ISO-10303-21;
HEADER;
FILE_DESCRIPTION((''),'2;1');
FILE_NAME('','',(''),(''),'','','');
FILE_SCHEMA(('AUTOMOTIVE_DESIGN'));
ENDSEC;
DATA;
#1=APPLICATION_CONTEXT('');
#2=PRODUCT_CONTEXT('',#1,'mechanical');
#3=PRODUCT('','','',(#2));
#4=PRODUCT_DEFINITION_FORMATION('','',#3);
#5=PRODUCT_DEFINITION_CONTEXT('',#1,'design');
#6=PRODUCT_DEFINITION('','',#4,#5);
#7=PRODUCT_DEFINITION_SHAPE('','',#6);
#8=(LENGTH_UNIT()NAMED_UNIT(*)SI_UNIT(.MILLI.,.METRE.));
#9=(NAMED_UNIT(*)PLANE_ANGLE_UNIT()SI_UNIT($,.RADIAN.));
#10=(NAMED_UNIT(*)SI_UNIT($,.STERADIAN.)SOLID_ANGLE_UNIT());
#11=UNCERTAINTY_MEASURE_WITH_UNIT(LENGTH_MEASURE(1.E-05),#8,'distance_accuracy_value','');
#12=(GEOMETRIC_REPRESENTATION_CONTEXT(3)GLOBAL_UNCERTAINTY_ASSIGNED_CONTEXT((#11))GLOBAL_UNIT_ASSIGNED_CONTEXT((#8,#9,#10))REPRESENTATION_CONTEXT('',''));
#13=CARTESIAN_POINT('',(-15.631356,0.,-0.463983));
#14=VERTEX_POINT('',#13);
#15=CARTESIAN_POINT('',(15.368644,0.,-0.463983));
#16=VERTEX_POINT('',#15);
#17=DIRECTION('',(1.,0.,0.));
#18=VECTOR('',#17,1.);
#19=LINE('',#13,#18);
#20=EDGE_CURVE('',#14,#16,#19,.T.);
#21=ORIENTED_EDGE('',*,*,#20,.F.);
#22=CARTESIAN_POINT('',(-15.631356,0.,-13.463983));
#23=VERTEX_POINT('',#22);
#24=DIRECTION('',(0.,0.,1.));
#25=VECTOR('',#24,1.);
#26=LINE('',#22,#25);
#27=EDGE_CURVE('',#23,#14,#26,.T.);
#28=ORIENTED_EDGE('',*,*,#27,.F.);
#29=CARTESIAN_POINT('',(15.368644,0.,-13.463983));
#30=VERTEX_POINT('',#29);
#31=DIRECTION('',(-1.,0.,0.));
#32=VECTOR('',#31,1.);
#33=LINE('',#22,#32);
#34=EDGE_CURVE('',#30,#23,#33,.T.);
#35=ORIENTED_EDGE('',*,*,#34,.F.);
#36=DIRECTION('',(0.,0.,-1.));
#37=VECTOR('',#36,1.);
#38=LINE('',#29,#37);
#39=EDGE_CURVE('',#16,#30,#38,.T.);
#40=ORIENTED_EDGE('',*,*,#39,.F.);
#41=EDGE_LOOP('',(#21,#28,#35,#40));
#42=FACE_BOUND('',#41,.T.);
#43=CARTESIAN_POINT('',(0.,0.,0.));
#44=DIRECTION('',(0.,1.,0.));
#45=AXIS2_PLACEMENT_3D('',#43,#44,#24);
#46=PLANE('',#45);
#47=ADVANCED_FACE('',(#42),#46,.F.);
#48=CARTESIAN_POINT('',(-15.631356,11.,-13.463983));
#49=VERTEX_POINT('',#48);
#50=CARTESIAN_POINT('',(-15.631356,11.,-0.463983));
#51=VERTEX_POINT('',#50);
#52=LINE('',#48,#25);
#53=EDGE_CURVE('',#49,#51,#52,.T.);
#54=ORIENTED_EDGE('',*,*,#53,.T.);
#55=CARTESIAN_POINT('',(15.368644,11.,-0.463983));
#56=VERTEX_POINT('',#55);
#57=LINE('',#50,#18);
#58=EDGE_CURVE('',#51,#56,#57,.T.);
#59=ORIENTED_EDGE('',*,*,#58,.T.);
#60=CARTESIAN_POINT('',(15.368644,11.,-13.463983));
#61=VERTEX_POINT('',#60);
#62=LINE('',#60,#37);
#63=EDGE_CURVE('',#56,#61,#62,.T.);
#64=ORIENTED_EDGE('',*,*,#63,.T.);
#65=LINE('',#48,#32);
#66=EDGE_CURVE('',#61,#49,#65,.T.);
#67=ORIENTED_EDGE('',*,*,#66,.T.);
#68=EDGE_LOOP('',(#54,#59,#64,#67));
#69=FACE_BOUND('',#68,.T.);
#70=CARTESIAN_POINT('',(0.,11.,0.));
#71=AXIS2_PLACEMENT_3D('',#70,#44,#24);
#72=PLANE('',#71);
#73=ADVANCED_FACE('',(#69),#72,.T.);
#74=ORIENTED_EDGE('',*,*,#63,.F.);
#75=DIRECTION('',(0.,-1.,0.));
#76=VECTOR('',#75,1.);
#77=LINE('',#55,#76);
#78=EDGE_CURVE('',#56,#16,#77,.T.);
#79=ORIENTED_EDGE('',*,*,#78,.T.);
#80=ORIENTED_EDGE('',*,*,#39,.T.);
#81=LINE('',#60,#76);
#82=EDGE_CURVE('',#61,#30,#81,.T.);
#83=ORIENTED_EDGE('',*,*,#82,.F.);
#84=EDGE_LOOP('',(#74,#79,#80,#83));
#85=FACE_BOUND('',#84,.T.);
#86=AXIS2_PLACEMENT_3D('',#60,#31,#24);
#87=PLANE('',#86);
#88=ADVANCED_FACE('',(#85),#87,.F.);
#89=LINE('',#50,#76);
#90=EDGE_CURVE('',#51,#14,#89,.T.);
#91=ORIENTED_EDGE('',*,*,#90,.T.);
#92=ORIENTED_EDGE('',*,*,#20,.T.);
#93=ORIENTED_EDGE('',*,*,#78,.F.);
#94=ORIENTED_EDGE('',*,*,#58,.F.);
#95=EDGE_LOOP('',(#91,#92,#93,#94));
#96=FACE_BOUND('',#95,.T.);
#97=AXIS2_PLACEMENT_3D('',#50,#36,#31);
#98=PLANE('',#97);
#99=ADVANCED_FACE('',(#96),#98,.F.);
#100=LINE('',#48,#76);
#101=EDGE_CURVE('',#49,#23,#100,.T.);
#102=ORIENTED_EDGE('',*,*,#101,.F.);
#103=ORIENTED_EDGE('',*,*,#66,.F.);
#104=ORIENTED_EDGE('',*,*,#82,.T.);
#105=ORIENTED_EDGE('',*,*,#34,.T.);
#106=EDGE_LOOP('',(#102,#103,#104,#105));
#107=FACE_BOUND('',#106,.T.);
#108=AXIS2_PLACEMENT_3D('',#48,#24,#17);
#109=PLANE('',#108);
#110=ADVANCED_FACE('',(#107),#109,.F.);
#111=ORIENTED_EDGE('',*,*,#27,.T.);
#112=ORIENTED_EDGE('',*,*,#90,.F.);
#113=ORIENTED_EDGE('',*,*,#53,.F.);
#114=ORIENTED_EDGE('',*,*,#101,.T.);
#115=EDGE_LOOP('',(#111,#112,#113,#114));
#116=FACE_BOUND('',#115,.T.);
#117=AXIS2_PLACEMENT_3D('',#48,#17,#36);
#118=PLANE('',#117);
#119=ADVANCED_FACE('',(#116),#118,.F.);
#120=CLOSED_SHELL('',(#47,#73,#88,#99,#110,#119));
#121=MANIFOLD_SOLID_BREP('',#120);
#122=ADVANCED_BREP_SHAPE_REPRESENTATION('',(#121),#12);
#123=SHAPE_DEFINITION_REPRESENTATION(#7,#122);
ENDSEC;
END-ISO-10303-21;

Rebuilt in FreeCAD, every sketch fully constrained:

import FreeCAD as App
import Part
import Sketcher
Q = App.Units.Quantity


def add_polygon(sketch, points):
    """Adds a closed chain of lines whose ends are joined by coincident constraints."""
    first, n = sketch.GeometryCount, len(points)
    for a, b in zip(points, points[1:] + points[:1]):
        sketch.addGeometry(Part.LineSegment(App.Vector(*a, 0), App.Vector(*b, 0)), False)
    for i in range(n):
        sketch.addConstraint(Sketcher.Constraint("Coincident", first + i, 2, first + (i + 1) % n, 1))

doc = App.newDocument("Part")
params = doc.addObject("Spreadsheet::Sheet", "Params")
for row, (alias, value) in enumerate([
    ("sketch1_width", "31 mm"),
    ("sketch1_height", "13 mm"),
    ("pad1_length", "11 mm"),
], start=1):
    params.set(f"A{row}", alias)
    params.set(f"B{row}", "=" + value)
    params.setAlias(f"B{row}", alias)

body = doc.addObject("PartDesign::Body", "Body")

sketch1 = doc.addObject("Sketcher::SketchObject", "Sketch")
body.addObject(sketch1)
sketch1.AttachmentSupport = (doc.XZ_Plane, [""])
sketch1.MapMode = "FlatFace"
add_polygon(sketch1, [(-15.631356, -13.463983), (-15.631356, -0.463983), (15.368644, -0.463983), (15.368644, -13.463983)])
sketch1.addConstraint(Sketcher.Constraint("Vertical", 0))
sketch1.addConstraint(Sketcher.Constraint("Horizontal", 1))
sketch1.addConstraint(Sketcher.Constraint("Vertical", 2))
sketch1.addConstraint(Sketcher.Constraint("Horizontal", 3))
sketch1.addConstraint(Sketcher.Constraint("DistanceX", 1, 1, 1, 2, Q("31 mm")))
sketch1.addConstraint(Sketcher.Constraint("DistanceY", 0, 1, 0, 2, Q("13 mm")))
sketch1.addConstraint(Sketcher.Constraint("DistanceX", 0, 2, -1, 1, Q("15.631356 mm")))
sketch1.addConstraint(Sketcher.Constraint("DistanceY", 0, 2, -1, 1, Q("0.463983 mm")))
sketch1.setExpression("Constraints[8]", "Params.sketch1_width")
sketch1.setExpression("Constraints[9]", "Params.sketch1_height")
pad1 = doc.addObject("PartDesign::Pad", "Pad")
body.addObject(pad1)
pad1.Profile = sketch1
pad1.setExpression("Length", "Params.pad1_length")
pad1.Reversed = True

doc.recompute()
